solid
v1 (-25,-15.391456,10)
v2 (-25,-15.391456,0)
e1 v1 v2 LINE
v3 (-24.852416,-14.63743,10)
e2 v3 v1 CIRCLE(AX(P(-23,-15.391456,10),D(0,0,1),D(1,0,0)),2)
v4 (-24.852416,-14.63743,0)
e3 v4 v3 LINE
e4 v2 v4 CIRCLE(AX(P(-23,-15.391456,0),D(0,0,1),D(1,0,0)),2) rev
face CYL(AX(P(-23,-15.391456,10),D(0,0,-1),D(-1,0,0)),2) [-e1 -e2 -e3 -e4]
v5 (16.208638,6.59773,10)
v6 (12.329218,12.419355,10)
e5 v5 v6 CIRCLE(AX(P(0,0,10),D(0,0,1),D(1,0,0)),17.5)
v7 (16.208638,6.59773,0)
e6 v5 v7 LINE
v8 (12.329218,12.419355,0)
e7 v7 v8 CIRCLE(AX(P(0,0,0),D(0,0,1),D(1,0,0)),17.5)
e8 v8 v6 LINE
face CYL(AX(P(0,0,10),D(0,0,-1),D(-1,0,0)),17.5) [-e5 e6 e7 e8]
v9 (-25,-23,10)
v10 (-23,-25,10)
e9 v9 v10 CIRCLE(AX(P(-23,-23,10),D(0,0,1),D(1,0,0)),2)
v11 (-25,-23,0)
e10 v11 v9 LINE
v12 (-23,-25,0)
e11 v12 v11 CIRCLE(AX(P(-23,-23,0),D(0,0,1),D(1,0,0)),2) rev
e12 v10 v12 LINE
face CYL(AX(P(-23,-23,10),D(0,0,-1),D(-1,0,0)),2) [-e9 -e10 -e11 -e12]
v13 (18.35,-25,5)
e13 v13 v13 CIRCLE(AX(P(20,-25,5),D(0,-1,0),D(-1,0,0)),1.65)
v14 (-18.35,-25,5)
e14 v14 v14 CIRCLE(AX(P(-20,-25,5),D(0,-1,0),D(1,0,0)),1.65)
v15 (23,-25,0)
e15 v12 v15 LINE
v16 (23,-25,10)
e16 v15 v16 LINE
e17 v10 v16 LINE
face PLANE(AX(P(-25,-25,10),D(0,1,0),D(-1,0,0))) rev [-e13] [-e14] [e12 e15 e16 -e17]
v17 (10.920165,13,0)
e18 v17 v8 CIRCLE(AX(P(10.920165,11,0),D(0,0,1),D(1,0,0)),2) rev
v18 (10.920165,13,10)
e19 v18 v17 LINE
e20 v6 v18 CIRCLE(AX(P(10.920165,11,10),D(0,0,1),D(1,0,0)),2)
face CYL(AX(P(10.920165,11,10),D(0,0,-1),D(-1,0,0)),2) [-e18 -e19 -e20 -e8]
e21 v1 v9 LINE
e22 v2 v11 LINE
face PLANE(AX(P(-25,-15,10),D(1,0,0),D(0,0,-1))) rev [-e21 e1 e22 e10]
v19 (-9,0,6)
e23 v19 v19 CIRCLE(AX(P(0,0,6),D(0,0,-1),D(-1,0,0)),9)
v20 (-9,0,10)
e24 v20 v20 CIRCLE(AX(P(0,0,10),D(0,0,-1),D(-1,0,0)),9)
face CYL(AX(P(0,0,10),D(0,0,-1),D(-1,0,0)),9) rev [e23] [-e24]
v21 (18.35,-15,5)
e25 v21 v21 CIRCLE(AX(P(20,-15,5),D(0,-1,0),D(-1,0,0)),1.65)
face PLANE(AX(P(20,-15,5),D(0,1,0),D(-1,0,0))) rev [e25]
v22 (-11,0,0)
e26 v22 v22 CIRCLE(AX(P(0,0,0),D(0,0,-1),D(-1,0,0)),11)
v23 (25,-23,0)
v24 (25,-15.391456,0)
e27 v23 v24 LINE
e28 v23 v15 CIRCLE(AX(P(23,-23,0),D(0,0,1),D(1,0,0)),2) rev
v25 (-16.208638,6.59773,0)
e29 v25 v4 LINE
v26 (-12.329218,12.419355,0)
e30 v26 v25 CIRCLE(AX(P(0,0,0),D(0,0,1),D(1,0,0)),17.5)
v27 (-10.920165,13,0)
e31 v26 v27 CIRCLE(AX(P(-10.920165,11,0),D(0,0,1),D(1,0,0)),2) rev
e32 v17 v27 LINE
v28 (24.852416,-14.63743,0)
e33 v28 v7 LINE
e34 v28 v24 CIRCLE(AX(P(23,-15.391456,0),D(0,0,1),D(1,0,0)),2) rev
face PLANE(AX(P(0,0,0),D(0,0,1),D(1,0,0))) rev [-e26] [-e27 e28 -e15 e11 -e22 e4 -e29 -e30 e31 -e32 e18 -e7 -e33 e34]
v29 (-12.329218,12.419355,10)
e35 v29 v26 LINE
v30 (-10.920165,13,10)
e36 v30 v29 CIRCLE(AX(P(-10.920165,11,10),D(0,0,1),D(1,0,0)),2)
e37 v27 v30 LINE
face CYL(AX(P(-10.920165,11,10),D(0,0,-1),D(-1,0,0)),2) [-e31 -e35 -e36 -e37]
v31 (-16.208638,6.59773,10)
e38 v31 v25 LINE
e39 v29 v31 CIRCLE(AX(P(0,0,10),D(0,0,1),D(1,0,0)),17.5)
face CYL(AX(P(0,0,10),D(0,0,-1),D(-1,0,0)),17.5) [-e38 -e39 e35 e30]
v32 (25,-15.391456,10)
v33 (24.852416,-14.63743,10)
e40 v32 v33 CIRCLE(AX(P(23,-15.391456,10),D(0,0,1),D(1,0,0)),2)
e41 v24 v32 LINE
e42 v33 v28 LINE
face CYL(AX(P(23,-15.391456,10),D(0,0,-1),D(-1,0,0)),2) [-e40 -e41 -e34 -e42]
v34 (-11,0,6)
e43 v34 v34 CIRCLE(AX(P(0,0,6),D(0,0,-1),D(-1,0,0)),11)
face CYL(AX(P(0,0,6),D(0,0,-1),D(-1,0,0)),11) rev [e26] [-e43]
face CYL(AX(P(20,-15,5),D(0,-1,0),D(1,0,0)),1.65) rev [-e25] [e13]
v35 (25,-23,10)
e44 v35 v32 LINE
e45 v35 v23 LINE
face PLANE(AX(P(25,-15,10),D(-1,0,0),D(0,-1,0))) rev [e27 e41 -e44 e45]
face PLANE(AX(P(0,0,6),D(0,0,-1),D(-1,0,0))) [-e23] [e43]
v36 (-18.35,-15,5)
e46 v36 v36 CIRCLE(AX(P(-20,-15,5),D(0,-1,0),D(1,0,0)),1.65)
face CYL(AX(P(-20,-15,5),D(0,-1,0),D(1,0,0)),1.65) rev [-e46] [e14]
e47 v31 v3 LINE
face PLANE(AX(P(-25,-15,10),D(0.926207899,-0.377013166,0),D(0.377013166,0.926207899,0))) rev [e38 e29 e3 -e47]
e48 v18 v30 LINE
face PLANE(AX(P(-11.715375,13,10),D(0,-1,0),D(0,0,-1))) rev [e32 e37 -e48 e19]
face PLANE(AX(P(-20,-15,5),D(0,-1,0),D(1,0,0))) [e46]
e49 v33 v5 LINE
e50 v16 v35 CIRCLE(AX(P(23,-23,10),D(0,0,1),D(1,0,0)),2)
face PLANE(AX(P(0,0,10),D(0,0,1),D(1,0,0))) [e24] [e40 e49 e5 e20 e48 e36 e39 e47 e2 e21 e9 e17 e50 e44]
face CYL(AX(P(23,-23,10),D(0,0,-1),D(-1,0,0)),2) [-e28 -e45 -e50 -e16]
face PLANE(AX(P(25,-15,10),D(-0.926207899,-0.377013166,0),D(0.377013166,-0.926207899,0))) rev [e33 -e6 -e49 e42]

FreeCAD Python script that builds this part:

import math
import FreeCAD as App
import Part
import Sketcher
from FreeCAD import Vector


def edges_at(feature, points):
    """Names of the edges that pass closest to the given points."""
    edges = feature.Shape.Edges
    near = lambda p: min(range(len(edges)), key=lambda i: edges[i].distToShape(Part.Vertex(*p))[0])
    return sorted({f"Edge{near(p) + 1}" for p in points})

doc = App.newDocument("Part")
params = doc.addObject("Spreadsheet::Sheet", "Params")
for row, (alias, value) in enumerate([
    ("sketch1_radius", "17.5 mm"),
    ("sketch1_width", "50 mm"),
    ("sketch1_height", "10 mm"),
    ("pad1_length", "10 mm"),
    ("sketch2_diameter", "22 mm"),
    ("pocket1_length", "6 mm"),
    ("sketch3_diameter", "3.3 mm"),
    ("pocket2_length", "10 mm"),
    ("sketch4_diameter", "18 mm"),
    ("fillet_radius", "2 mm"),
], start=1):
    params.set(f"A{row}", alias)
    params.set(f"B{row}", "=" + value)
    params.setAlias(f"B{row}", alias)

body = doc.addObject("PartDesign::Body", "Body")

# Sketch on XY plane
sketch1 = body.newObject("Sketcher::SketchObject", "Sketch")
sketch1.AttachmentSupport = (doc.getObject("XY_Plane"), [""])
sketch1.MapMode = "FlatFace"
sketch1.addGeometry(Part.LineSegment(Vector(-16, 7, 0), Vector(-25, -15, 0)), False)
sketch1.addGeometry(Part.LineSegment(Vector(-25, -15, 0), Vector(-25, -25, 0)), False)
sketch1.addGeometry(Part.LineSegment(Vector(-25, -25, 0), Vector(25, -25, 0)), False)
sketch1.addGeometry(Part.LineSegment(Vector(25, -25, 0), Vector(25, -15, 0)), False)
sketch1.addGeometry(Part.LineSegment(Vector(25, -15, 0), Vector(16, 7, 0)), False)
sketch1.addGeometry(Part.ArcOfCircle(Part.Circle(Vector(0, 0, 0), Vector(0, 0, 1), 18), math.radians(22), math.radians(48)), False)
sketch1.addGeometry(Part.LineSegment(Vector(12, 13, 0), Vector(-12, 13, 0)), False)
sketch1.addGeometry(Part.ArcOfCircle(Part.Circle(Vector(0, 0, 0), Vector(0, 0, 1), 18), math.radians(132), math.radians(158)), False)
sketch1.addConstraint(Sketcher.Constraint("Coincident", 0, 2, 1, 1))
sketch1.addConstraint(Sketcher.Constraint("Coincident", 1, 2, 2, 1))
sketch1.addConstraint(Sketcher.Constraint("Coincident", 2, 2, 3, 1))
sketch1.addConstraint(Sketcher.Constraint("Coincident", 3, 2, 4, 1))
sketch1.addConstraint(Sketcher.Constraint("Tangent", 4, 2, 5, 1))
sketch1.addConstraint(Sketcher.Constraint("Coincident", 5, 2, 6, 1))
sketch1.addConstraint(Sketcher.Constraint("Coincident", 6, 2, 7, 1))
sketch1.addConstraint(Sketcher.Constraint("Tangent", 7, 2, 0, 1))
sketch1.addConstraint(Sketcher.Constraint("Vertical", 1))
sketch1.addConstraint(Sketcher.Constraint("Horizontal", 2))
sketch1.addConstraint(Sketcher.Constraint("Vertical", 3))
sketch1.addConstraint(Sketcher.Constraint("Horizontal", 6))
sketch1.addConstraint(Sketcher.Constraint("Coincident", 5, 3, -1, 1))
sketch1.addConstraint(Sketcher.Constraint("Coincident", 7, 3, -1, 1))
sketch1.addConstraint(Sketcher.Constraint("Equal", 5, 7))
sketch1.addConstraint(Sketcher.Constraint("Symmetric", 0, 2, 3, 2, -2))
sketch1.addConstraint(Sketcher.Constraint("Radius", 5, 17.5))
sketch1.addConstraint(Sketcher.Constraint("DistanceX", 2, 1, 2, 2, 50.0))
sketch1.addConstraint(Sketcher.Constraint("DistanceY", 1, 2, 1, 1, 10.0))
sketch1.addConstraint(Sketcher.Constraint("DistanceY", 0, 2, -1, 1, 15.0))
sketch1.addConstraint(Sketcher.Constraint("DistanceY", -1, 1, 5, 2, 13.0))
sketch1.setExpression("Constraints[16]", "Params.sketch1_radius")
sketch1.setExpression("Constraints[17]", "Params.sketch1_width")
sketch1.setExpression("Constraints[18]", "Params.sketch1_height")
pad1 = body.newObject("PartDesign::Pad", "Pad")
pad1.Profile = sketch1
pad1.setExpression("Length", "Params.pad1_length")

# Sketch on XY plane
sketch2 = body.newObject("Sketcher::SketchObject", "Sketch001")
sketch2.AttachmentSupport = (doc.getObject("XY_Plane"), [""])
sketch2.MapMode = "FlatFace"
sketch2.addGeometry(Part.Circle(Vector(0, 0, 0), Vector(0, 0, 1), 11), False)
sketch2.addConstraint(Sketcher.Constraint("Coincident", 0, 3, -1, 1))
sketch2.addConstraint(Sketcher.Constraint("Diameter", 0, 22.0))
sketch2.setExpression("Constraints[1]", "Params.sketch2_diameter")
pocket1 = body.newObject("PartDesign::Pocket", "Pocket")
pocket1.Profile = sketch2
pocket1.setExpression("Length", "Params.pocket1_length")
pocket1.Reversed = True

# Sketch on XZ plane
sketch3 = body.newObject("Sketcher::SketchObject", "Sketch002")
sketch3.AttachmentSupport = (doc.getObject("XZ_Plane"), [""])
sketch3.MapMode = "FlatFace"
sketch3.AttachmentOffset = App.Placement(Vector(0, 0, 25), App.Rotation())
sketch3.addGeometry(Part.Circle(Vector(-20, 5, 0), Vector(0, 0, 1), 1.6), False)
sketch3.addGeometry(Part.Circle(Vector(20, 5, 0), Vector(0, 0, 1), 1.6), False)
sketch3.addConstraint(Sketcher.Constraint("Equal", 0, 1))
sketch3.addConstraint(Sketcher.Constraint("Symmetric", 0, 3, 1, 3, -2))
sketch3.addConstraint(Sketcher.Constraint("Diameter", 0, 3.3))
sketch3.addConstraint(Sketcher.Constraint("DistanceX", 0, 3, -1, 1, 20.0))
sketch3.addConstraint(Sketcher.Constraint("DistanceY", -1, 1, 0, 3, 5.0))
sketch3.setExpression("Constraints[2]", "Params.sketch3_diameter")
pocket2 = body.newObject("PartDesign::Pocket", "Pocket001")
pocket2.Profile = sketch3
pocket2.setExpression("Length", "Params.pocket2_length")

# Sketch on XY plane
sketch4 = body.newObject("Sketcher::SketchObject", "Sketch003")
sketch4.AttachmentSupport = (doc.getObject("XY_Plane"), [""])
sketch4.MapMode = "FlatFace"
sketch4.AttachmentOffset = App.Placement(Vector(0, 0, 6), App.Rotation())
sketch4.addGeometry(Part.Circle(Vector(0, 0, 0), Vector(0, 0, 1), 9), False)
sketch4.addConstraint(Sketcher.Constraint("Coincident", 0, 3, -1, 1))
sketch4.addConstraint(Sketcher.Constraint("Diameter", 0, 18.0))
sketch4.setExpression("Constraints[1]", "Params.sketch4_diameter")
pocket3 = body.newObject("PartDesign::Pocket", "Pocket002")
pocket3.Profile = sketch4
pocket3.Type = "ThroughAll"
pocket3.Reversed = True
doc.recompute()

fillet = body.newObject("PartDesign::Fillet", "Fillet")
fillet.Base = (pocket3, edges_at(pocket3, [
    (25, -25, 5),
    (-25, -25, 5),
    (-25, -15, 5),
    (-11.715, 13, 5),
    (11.715, 13, 5),
    (25, -15, 5),
]))
fillet.setExpression("Radius", "Params.fillet_radius")

doc.recompute()
